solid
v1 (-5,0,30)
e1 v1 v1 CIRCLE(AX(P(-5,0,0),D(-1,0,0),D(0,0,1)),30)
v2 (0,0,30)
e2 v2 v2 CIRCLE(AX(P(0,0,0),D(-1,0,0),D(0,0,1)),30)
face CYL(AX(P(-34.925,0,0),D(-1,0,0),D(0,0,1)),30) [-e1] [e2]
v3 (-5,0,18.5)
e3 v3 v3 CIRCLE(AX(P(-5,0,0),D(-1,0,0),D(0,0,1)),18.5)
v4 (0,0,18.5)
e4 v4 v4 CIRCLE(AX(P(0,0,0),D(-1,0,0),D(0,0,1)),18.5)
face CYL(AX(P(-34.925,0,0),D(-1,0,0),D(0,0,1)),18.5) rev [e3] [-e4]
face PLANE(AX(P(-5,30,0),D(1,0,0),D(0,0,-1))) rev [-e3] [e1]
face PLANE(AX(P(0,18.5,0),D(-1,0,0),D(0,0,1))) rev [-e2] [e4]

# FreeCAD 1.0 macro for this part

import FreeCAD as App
import Part
import Sketcher
Q = App.Units.Quantity


def add_polygon(sketch, points):
    """Adds a closed chain of lines whose ends are joined by coincident constraints."""
    first, n = sketch.GeometryCount, len(points)
    for a, b in zip(points, points[1:] + points[:1]):
        sketch.addGeometry(Part.LineSegment(App.Vector(*a, 0), App.Vector(*b, 0)), False)
    for i in range(n):
        sketch.addConstraint(Sketcher.Constraint("Coincident", first + i, 2, first + (i + 1) % n, 1))

doc = App.newDocument("Part")
body = doc.addObject("PartDesign::Body", "Body")

# Sketch on XY plane
sketch1 = body.newObject("Sketcher::SketchObject", "Sketch")
sketch1.AttachmentSupport = (doc.getObject("XY_Plane"), [""])
sketch1.MapMode = "FlatFace"
add_polygon(sketch1, [(-5, 30), (-5, 18.5), (0, 18.5), (0, 30)])  # lines 0-3
sketch1.addConstraint(Sketcher.Constraint("Vertical", 0))
sketch1.addConstraint(Sketcher.Constraint("Horizontal", 1))
sketch1.addConstraint(Sketcher.Constraint("Vertical", 2))
sketch1.addConstraint(Sketcher.Constraint("Horizontal", 3))
sketch1.addConstraint(Sketcher.Constraint("PointOnObject", 1, 2, -2))
sketch1.addConstraint(Sketcher.Constraint("DistanceX", 1, 1, 1, 2, Q("5 mm")))
sketch1.addConstraint(Sketcher.Constraint("DistanceY", 0, 2, 0, 1, Q("11.5 mm")))
sketch1.addConstraint(Sketcher.Constraint("DistanceY", -1, 1, 2, 2, Q("30 mm")))
revolution = body.newObject("PartDesign::Revolution", "Revolution")
revolution.Profile = sketch1
revolution.ReferenceAxis = (sketch1, ["H_Axis"])
revolution.Angle = 360

doc.recompute()
